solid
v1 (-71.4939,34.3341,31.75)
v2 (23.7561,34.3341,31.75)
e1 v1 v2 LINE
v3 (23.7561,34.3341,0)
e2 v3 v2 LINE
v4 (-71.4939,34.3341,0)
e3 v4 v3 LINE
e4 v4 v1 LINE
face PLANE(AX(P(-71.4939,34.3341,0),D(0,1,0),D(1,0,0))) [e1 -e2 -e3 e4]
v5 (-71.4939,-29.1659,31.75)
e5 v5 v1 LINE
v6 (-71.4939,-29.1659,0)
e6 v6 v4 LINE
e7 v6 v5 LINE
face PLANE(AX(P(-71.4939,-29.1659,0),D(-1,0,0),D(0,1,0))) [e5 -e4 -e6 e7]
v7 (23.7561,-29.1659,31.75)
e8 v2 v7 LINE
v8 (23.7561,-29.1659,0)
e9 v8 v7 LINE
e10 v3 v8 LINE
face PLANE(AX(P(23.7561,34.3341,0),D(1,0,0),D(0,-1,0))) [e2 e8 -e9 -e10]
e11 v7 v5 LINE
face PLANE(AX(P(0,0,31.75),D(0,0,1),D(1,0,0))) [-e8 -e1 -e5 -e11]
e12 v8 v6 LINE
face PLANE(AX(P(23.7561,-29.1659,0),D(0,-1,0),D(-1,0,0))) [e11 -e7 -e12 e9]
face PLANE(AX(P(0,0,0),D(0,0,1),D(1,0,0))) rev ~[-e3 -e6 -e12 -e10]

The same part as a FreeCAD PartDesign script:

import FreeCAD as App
import Part
import Sketcher

V = App.Vector
Q = App.Units.Quantity

doc = App.newDocument("Part")
body = doc.addObject("PartDesign::Body", "Body")

# Sketch on XY plane
sketch1 = body.newObject("Sketcher::SketchObject", "Sketch")
sketch1.AttachmentSupport = (doc.getObject("XY_Plane"), [""])
sketch1.MapMode = "FlatFace"
sketch1.addGeometry([
    Part.LineSegment(V(24, 34, 0), V(-71, 34, 0)),
    Part.LineSegment(V(-71, 34, 0), V(-71, -29, 0)),
    Part.LineSegment(V(-71, -29, 0), V(24, -29, 0)),
    Part.LineSegment(V(24, -29, 0), V(24, 34, 0)),
], False)
sketch1.addConstraint([
    Sketcher.Constraint("Coincident", 0, 2, 1, 1),
    Sketcher.Constraint("Coincident", 1, 2, 2, 1),
    Sketcher.Constraint("Coincident", 2, 2, 3, 1),
    Sketcher.Constraint("Coincident", 3, 2, 0, 1),
    Sketcher.Constraint("Horizontal", 0),
    Sketcher.Constraint("Vertical", 1),
    Sketcher.Constraint("Horizontal", 2),
    Sketcher.Constraint("Vertical", 3),
    Sketcher.Constraint("DistanceY", 1, 2, 1, 1, Q("2.5 in")),
    Sketcher.Constraint("DistanceX", 0, 2, 0, 1, Q("3.75 in")),
    Sketcher.Constraint("DistanceX", 0, 2, -1, 1, 71.494),
    Sketcher.Constraint("DistanceY", -1, 1, 0, 2, 34.334),
])
pad1 = body.newObject("PartDesign::Pad", "Pad")
pad1.Profile = sketch1
pad1.Length = Q("1.25 in")

doc.recompute()
